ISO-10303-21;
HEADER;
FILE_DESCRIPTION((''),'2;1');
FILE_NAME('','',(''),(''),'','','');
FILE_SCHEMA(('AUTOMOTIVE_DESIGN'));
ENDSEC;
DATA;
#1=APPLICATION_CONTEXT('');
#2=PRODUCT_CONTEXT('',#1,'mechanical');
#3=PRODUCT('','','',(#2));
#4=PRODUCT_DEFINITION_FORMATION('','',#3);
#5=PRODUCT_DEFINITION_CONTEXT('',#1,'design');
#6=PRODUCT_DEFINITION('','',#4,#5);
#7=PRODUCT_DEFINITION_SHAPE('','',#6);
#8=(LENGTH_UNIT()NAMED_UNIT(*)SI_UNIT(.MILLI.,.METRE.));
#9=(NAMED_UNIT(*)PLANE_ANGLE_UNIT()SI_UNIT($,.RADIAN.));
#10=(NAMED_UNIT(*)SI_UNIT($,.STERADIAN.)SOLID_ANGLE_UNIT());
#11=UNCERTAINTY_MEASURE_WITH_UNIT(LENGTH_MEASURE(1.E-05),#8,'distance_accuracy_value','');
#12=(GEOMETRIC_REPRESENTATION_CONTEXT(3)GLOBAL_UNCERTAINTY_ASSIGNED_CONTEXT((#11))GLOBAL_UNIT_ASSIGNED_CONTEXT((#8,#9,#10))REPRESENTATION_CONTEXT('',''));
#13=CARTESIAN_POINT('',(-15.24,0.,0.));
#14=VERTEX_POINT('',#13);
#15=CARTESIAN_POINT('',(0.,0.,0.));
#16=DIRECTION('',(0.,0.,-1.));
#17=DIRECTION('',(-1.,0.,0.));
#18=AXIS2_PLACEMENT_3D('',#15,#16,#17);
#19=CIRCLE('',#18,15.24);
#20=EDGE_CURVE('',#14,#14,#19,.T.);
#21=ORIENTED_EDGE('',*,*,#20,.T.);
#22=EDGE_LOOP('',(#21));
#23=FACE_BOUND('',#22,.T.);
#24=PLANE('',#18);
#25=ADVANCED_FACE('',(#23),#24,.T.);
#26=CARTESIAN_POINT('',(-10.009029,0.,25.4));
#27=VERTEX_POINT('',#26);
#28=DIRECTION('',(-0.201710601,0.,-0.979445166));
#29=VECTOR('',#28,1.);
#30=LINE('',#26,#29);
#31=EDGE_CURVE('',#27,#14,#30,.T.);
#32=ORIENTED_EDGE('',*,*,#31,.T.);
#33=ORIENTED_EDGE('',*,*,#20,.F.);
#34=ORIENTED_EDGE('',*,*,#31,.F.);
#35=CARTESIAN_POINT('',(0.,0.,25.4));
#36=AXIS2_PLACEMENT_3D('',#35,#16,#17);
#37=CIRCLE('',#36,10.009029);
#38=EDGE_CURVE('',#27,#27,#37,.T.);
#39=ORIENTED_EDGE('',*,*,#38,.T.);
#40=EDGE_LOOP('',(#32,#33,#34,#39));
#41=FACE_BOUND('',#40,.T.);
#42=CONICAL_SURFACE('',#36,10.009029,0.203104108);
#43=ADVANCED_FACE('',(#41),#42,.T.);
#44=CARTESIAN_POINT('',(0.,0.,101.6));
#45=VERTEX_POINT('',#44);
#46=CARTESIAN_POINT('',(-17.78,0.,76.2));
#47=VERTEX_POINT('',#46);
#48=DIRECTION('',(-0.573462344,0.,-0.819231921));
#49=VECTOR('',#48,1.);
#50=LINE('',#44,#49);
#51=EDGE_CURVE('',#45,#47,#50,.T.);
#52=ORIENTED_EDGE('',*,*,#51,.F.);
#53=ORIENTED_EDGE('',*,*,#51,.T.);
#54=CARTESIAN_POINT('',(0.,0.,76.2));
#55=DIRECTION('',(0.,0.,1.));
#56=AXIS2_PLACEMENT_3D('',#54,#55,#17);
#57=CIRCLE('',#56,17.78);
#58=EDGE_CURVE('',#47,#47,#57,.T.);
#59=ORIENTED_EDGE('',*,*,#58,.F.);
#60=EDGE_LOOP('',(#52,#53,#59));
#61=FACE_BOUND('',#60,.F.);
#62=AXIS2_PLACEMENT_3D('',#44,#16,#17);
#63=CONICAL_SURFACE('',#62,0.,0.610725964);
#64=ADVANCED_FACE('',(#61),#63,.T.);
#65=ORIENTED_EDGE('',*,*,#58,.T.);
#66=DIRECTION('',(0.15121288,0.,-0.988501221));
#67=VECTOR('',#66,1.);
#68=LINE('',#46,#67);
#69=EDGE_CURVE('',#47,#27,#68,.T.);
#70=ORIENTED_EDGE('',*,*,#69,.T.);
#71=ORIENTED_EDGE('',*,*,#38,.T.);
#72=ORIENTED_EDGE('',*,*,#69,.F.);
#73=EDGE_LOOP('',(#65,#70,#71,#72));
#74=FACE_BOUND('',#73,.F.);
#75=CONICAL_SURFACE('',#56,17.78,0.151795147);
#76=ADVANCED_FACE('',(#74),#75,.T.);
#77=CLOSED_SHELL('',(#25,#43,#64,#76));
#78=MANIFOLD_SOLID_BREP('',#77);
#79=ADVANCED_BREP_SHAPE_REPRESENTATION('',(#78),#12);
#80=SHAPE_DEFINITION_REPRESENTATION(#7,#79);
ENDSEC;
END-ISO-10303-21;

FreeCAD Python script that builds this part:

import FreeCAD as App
import Part
import Sketcher
from FreeCAD import Vector
Q = App.Units.Quantity


def add_polygon(sketch, points):
    """Adds a closed chain of lines whose ends are joined by coincident constraints."""
    first, n = sketch.GeometryCount, len(points)
    for a, b in zip(points, points[1:] + points[:1]):
        sketch.addGeometry(Part.LineSegment(App.Vector(*a, 0), App.Vector(*b, 0)), False)
    for i in range(n):
        sketch.addConstraint(Sketcher.Constraint("Coincident", first + i, 2, first + (i + 1) % n, 1))

doc = App.newDocument("Part")
params = doc.addObject("Spreadsheet::Sheet", "Params")
for row, (alias, value) in enumerate([
    ("sketch1_height", "1 in"),
    ("sketch1_width", "0.6 in"),
    ("revolution_angle", "360 deg"),
    ("sketch2_height", "2 in"),
    ("sketch2_width", "0.7 in"),
    ("revolution2_angle", "360 deg"),
    ("sketch3_height", "1 in"),
    ("sketch3_width", "0.7 in"),
    ("revolution3_angle", "360 deg"),
], start=1):
    params.set(f"A{row}", alias)
    params.set(f"B{row}", "=" + value)
    params.setAlias(f"B{row}", alias)

body = doc.addObject("PartDesign::Body", "Body")

sketch1 = doc.addObject("Sketcher::SketchObject", "Sketch")
body.addObject(sketch1)
sketch1.AttachmentSupport = (doc.XZ_Plane, [""])
sketch1.MapMode = "FlatFace"
add_polygon(sketch1, [(-15, 0), (0, 0), (0, 25), (-10, 25)])
sketch1.addConstraint(Sketcher.Constraint("Horizontal", 0))
sketch1.addConstraint(Sketcher.Constraint("Vertical", 1))
sketch1.addConstraint(Sketcher.Constraint("Horizontal", 2))
sketch1.addConstraint(Sketcher.Constraint("Coincident", 0, 2, -1, 1))
sketch1.addConstraint(Sketcher.Constraint("DistanceY", 1, 1, 1, 2, Q("1 in")))
sketch1.addConstraint(Sketcher.Constraint("DistanceX", 0, 1, 0, 2, Q("0.6 in")))
sketch1.addConstraint(Sketcher.Constraint("DistanceX", 2, 2, 2, 1, 10.009029))
sketch1.setExpression("Constraints[8]", "Params.sketch1_height")
sketch1.setExpression("Constraints[9]", "Params.sketch1_width")
revolution = doc.addObject("PartDesign::Revolution", "Revolution")
body.addObject(revolution)
revolution.Profile = sketch1
revolution.ReferenceAxis = (sketch1, ["V_Axis"])
revolution.setExpression("Angle", "Params.revolution_angle")

sketch2 = doc.addObject("Sketcher::SketchObject", "Sketch001")
body.addObject(sketch2)
sketch2.AttachmentSupport = (doc.XZ_Plane, [""])
sketch2.MapMode = "FlatFace"
add_polygon(sketch2, [(-18, 76), (-10, 25), (0, 25), (0, 76)])
sketch2.addConstraint(Sketcher.Constraint("Horizontal", 1))
sketch2.addConstraint(Sketcher.Constraint("Vertical", 2))
sketch2.addConstraint(Sketcher.Constraint("Horizontal", 3))
sketch2.addConstraint(Sketcher.Constraint("PointOnObject", 1, 2, -2))
sketch2.addConstraint(Sketcher.Constraint("DistanceY", 2, 1, 2, 2, Q("2 in")))
sketch2.addConstraint(Sketcher.Constraint("DistanceX", 3, 2, 3, 1, Q("0.7 in")))
sketch2.addConstraint(Sketcher.Constraint("DistanceY", -1, 1, 0, 2, Q("1 in")))
sketch2.addConstraint(Sketcher.Constraint("DistanceX", 1, 1, 1, 2, 10.009029))
sketch2.setExpression("Constraints[8]", "Params.sketch2_height")
sketch2.setExpression("Constraints[9]", "Params.sketch2_width")
revolution2 = doc.addObject("PartDesign::Revolution", "Revolution001")
body.addObject(revolution2)
revolution2.Profile = sketch2
revolution2.ReferenceAxis = (sketch2, ["V_Axis"])
revolution2.setExpression("Angle", "Params.revolution2_angle")

sketch3 = doc.addObject("Sketcher::SketchObject", "Sketch002")
body.addObject(sketch3)
sketch3.AttachmentSupport = (doc.XZ_Plane, [""])
sketch3.MapMode = "FlatFace"
add_polygon(sketch3, [(0, 102), (-18, 76), (0, 76)])
sketch3.addConstraint(Sketcher.Constraint("Horizontal", 1))
sketch3.addConstraint(Sketcher.Constraint("Vertical", 2))
sketch3.addConstraint(Sketcher.Constraint("PointOnObject", 1, 2, -2))
sketch3.addConstraint(Sketcher.Constraint("DistanceY", 2, 1, 2, 2, Q("1 in")))
sketch3.addConstraint(Sketcher.Constraint("DistanceX", 1, 1, 1, 2, Q("0.7 in")))
sketch3.addConstraint(Sketcher.Constraint("DistanceY", -1, 1, 0, 2, Q("3 in")))
sketch3.setExpression("Constraints[6]", "Params.sketch3_height")
sketch3.setExpression("Constraints[7]", "Params.sketch3_width")
revolution3 = doc.addObject("PartDesign::Revolution", "Revolution002")
body.addObject(revolution3)
revolution3.Profile = sketch3
revolution3.ReferenceAxis = (sketch3, ["V_Axis"])
revolution3.setExpression("Angle", "Params.revolution3_angle")

doc.recompute()
